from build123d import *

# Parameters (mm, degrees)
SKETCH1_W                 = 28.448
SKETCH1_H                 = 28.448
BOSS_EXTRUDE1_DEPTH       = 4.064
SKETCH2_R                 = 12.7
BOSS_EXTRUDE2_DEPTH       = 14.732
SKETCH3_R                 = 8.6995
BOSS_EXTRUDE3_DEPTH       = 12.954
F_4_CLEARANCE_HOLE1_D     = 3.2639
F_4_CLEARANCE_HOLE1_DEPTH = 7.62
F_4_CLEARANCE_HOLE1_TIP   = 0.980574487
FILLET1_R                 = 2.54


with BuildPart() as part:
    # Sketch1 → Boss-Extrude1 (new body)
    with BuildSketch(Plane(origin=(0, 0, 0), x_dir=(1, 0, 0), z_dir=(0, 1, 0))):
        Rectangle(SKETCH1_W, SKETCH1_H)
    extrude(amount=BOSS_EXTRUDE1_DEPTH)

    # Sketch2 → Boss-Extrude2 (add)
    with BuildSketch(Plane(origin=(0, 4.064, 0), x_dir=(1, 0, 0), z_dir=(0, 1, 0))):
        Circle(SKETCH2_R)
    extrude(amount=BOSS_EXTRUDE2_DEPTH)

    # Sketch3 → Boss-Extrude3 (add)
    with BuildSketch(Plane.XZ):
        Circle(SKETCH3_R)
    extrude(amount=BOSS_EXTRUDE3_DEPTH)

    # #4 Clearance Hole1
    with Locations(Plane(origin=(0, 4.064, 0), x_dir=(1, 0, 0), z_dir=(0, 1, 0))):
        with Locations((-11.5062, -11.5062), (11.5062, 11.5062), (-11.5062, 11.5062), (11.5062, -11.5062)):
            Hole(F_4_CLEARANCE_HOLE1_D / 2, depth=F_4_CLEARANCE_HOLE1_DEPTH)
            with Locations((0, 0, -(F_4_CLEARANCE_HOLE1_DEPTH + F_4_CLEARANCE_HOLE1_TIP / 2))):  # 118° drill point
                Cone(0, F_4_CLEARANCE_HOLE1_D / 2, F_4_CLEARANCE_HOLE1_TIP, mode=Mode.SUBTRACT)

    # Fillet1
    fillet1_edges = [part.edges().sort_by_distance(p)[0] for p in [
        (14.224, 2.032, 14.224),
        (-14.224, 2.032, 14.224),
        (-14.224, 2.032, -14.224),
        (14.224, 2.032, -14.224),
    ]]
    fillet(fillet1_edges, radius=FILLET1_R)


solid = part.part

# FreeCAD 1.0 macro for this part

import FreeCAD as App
import Part
import Sketcher
from FreeCAD import Vector
Q = App.Units.Quantity


def edges_at(feature, points):
    """Names of the edges that pass closest to the given points."""
    edges = feature.Shape.Edges
    near = lambda p: min(range(len(edges)), key=lambda i: edges[i].distToShape(Part.Vertex(*p))[0])
    return sorted({f"Edge{near(p) + 1}" for p in points})

doc = App.newDocument("Part")
body = doc.addObject("PartDesign::Body", "Body")

sketch1 = doc.addObject("Sketcher::SketchObject", "Sketch")
body.addObject(sketch1)
sketch1.AttachmentSupport = (doc.XZ_Plane, [""])
sketch1.MapMode = "FlatFace"
sketch1.addGeometry(Part.LineSegment(Vector(-14, -14, 0), Vector(-14, 14, 0)), False)
sketch1.addGeometry(Part.LineSegment(Vector(-14, 14, 0), Vector(14, 14, 0)), False)
sketch1.addGeometry(Part.LineSegment(Vector(14, 14, 0), Vector(14, -14, 0)), False)
sketch1.addGeometry(Part.LineSegment(Vector(14, -14, 0), Vector(-14, -14, 0)), False)
sketch1.addConstraint(Sketcher.Constraint("Coincident", 0, 2, 1, 1))
sketch1.addConstraint(Sketcher.Constraint("Coincident", 1, 2, 2, 1))
sketch1.addConstraint(Sketcher.Constraint("Coincident", 2, 2, 3, 1))
sketch1.addConstraint(Sketcher.Constraint("Coincident", 3, 2, 0, 1))
sketch1.addConstraint(Sketcher.Constraint("Vertical", 0))
sketch1.addConstraint(Sketcher.Constraint("Horizontal", 1))
sketch1.addConstraint(Sketcher.Constraint("Vertical", 2))
sketch1.addConstraint(Sketcher.Constraint("Horizontal", 3))
sketch1.addConstraint(Sketcher.Constraint("Symmetric", 0, 2, 2, 2, -1, 1))
sketch1.addConstraint(Sketcher.Constraint("Equal", 3, 0))
sketch1.addConstraint(Sketcher.Constraint("DistanceX", 1, 1, 1, 2, Q("1.12 in")))
pad1 = doc.addObject("PartDesign::Pad", "Pad")
body.addObject(pad1)
pad1.Profile = sketch1
pad1.Length = Q("0.16 in")
pad1.Reversed = True

sketch2 = doc.addObject("Sketcher::SketchObject", "Sketch001")
body.addObject(sketch2)
sketch2.AttachmentSupport = (doc.XZ_Plane, [""])
sketch2.MapMode = "FlatFace"
sketch2.AttachmentOffset = App.Placement(Vector(0, 0, -0.16 * 25.4), App.Rotation())
sketch2.addGeometry(Part.Circle(Vector(0, 0, 0), Vector(0, 0, 1), 13), False)
sketch2.addConstraint(Sketcher.Constraint("Coincident", 0, 3, -1, 1))
sketch2.addConstraint(Sketcher.Constraint("Diameter", 0, Q("1 in")))
pad2 = doc.addObject("PartDesign::Pad", "Pad001")
body.addObject(pad2)
pad2.Profile = sketch2
pad2.Length = Q("0.58 in")
pad2.Reversed = True

sketch3 = doc.addObject("Sketcher::SketchObject", "Sketch002")
body.addObject(sketch3)
sketch3.AttachmentSupport = (doc.XZ_Plane, [""])
sketch3.MapMode = "FlatFace"
sketch3.addGeometry(Part.Circle(Vector(0, 0, 0), Vector(0, 0, 1), 9), False)
sketch3.addConstraint(Sketcher.Constraint("Coincident", 0, 3, -1, 1))
sketch3.addConstraint(Sketcher.Constraint("Diameter", 0, Q("0.685 in")))
pad3 = doc.addObject("PartDesign::Pad", "Pad002")
body.addObject(pad3)
pad3.Profile = sketch3
pad3.Length = Q("0.51 in")

sketch4 = doc.addObject("Sketcher::SketchObject", "Sketch003")
body.addObject(sketch4)
sketch4.AttachmentSupport = (doc.XZ_Plane, [""])
sketch4.MapMode = "FlatFace"
sketch4.AttachmentOffset = App.Placement(Vector(0, 0, -0.16 * 25.4), App.Rotation())
sketch4.addGeometry(Part.Circle(Vector(-11.5, 11.5, 0), Vector(0, 0, 1), 1.6), False)
sketch4.addGeometry(Part.Circle(Vector(11.5, -11.5, 0), Vector(0, 0, 1), 1.6), False)
sketch4.addGeometry(Part.Circle(Vector(-11.5, -11.5, 0), Vector(0, 0, 1), 1.6), False)
sketch4.addGeometry(Part.Circle(Vector(11.5, 11.5, 0), Vector(0, 0, 1), 1.6), False)
sketch4.addConstraint(Sketcher.Constraint("Equal", 0, 1))
sketch4.addConstraint(Sketcher.Constraint("Equal", 1, 2))
sketch4.addConstraint(Sketcher.Constraint("Equal", 2, 3))
sketch4.addConstraint(Sketcher.Constraint("Symmetric", 0, 3, 1, 3, -1, 1))
sketch4.addConstraint(Sketcher.Constraint("Symmetric", 2, 3, 3, 3, -1, 1))
sketch4.addConstraint(Sketcher.Constraint("Symmetric", 1, 3, 2, 3, -2))
sketch4.addConstraint(Sketcher.Constraint("Diameter", 0, Q("0.1285 in")))
sketch4.addConstraint(Sketcher.Constraint("DistanceX", 0, 3, -1, 1, Q("0.453 in")))
sketch4.addConstraint(Sketcher.Constraint("DistanceY", -1, 1, 0, 3, Q("0.453 in")))
doc.recompute()
hole = doc.addObject("PartDesign::Hole", "Hole")
body.addObject(hole)
hole.Profile = sketch4
hole.ThreadType = "None"
hole.Diameter = Q("0.1285 in")
hole.DepthType = "Dimension"
hole.Depth = Q("0.3 in")
hole.DrillPoint = "Angled"
hole.DrillPointAngle = 118
hole.Reversed = True
doc.recompute()

fillet = doc.addObject("PartDesign::Fillet", "Fillet")
body.addObject(fillet)
fillet.Base = (hole, edges_at(hole, [
    (14.224, 2.032, 14.224),
    (-14.224, 2.032, 14.224),
    (-14.224, 2.032, -14.224),
    (14.224, 2.032, -14.224),
]))
fillet.Radius = Q("0.1 in")

doc.recompute()
